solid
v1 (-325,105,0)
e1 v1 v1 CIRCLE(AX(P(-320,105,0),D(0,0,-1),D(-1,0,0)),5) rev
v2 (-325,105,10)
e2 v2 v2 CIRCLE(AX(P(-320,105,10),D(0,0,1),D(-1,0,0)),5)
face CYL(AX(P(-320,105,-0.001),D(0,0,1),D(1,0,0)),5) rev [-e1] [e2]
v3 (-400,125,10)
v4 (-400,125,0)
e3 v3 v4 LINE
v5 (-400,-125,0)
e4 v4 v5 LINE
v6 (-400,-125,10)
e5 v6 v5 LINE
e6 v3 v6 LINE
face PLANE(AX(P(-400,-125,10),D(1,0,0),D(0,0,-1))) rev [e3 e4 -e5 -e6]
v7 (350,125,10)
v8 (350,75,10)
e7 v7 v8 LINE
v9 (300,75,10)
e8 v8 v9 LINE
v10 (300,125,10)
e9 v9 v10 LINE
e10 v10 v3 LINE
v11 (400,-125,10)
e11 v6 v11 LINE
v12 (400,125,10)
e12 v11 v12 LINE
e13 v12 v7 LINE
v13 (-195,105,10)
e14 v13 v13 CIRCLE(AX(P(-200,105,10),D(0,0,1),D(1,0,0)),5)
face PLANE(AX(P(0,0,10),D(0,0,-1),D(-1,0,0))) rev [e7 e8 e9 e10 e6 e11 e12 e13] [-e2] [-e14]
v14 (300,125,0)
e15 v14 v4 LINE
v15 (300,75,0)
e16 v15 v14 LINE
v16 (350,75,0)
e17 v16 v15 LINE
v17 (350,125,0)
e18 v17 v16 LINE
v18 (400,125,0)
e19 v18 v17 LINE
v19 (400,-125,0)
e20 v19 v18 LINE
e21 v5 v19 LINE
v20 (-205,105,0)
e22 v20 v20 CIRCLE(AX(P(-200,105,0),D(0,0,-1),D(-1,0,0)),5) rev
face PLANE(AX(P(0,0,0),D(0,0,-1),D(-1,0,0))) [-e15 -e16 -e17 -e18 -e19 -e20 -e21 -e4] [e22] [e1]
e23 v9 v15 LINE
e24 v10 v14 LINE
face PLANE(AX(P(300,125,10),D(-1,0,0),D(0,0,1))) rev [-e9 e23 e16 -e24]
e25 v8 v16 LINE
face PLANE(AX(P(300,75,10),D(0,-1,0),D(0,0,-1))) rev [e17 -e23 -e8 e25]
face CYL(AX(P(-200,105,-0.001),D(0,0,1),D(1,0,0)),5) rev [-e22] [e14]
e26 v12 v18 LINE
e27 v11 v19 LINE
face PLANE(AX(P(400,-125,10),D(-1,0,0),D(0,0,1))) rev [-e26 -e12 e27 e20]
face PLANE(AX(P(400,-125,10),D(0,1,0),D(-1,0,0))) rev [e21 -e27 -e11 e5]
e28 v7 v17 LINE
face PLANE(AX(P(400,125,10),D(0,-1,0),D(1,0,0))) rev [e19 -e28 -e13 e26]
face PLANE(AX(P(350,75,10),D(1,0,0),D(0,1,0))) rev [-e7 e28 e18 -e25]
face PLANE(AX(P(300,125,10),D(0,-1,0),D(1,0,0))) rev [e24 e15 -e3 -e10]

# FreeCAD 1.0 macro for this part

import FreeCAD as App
import Part
import Sketcher
Q = App.Units.Quantity


def add_polygon(sketch, points):
    """Adds a closed chain of lines whose ends are joined by coincident constraints."""
    first, n = sketch.GeometryCount, len(points)
    for a, b in zip(points, points[1:] + points[:1]):
        sketch.addGeometry(Part.LineSegment(App.Vector(*a, 0), App.Vector(*b, 0)), False)
    for i in range(n):
        sketch.addConstraint(Sketcher.Constraint("Coincident", first + i, 2, first + (i + 1) % n, 1))

doc = App.newDocument("Part")
body = doc.addObject("PartDesign::Body", "Body")

# Sketch on XY plane
sketch1 = body.newObject("Sketcher::SketchObject", "Sketch")
sketch1.AttachmentSupport = (doc.getObject("XY_Plane"), [""])
sketch1.MapMode = "FlatFace"
add_polygon(sketch1, [(300, 75), (300, 125), (-400, 125), (-400, -125), (400, -125), (400, 125), (350, 125), (350, 75)])  # lines 0-7
sketch1.addConstraint(Sketcher.Constraint("Vertical", 0))
sketch1.addConstraint(Sketcher.Constraint("Horizontal", 1))
sketch1.addConstraint(Sketcher.Constraint("Vertical", 2))
sketch1.addConstraint(Sketcher.Constraint("Horizontal", 3))
sketch1.addConstraint(Sketcher.Constraint("Vertical", 4))
sketch1.addConstraint(Sketcher.Constraint("Horizontal", 5))
sketch1.addConstraint(Sketcher.Constraint("Vertical", 6))
sketch1.addConstraint(Sketcher.Constraint("Horizontal", 7))
sketch1.addConstraint(Sketcher.Constraint("Symmetric", 1, 2, 3, 2, -1, 1))
sketch1.addConstraint(Sketcher.Constraint("Horizontal", 1, 2, 4, 2))
sketch1.addConstraint(Sketcher.Constraint("Equal", 5, 7))
sketch1.addConstraint(Sketcher.Constraint("Equal", 7, 0))
sketch1.addConstraint(Sketcher.Constraint("DistanceX", 1, 2, 1, 1, Q("700 mm")))
sketch1.addConstraint(Sketcher.Constraint("DistanceX", 3, 1, 3, 2, Q("800 mm")))
sketch1.addConstraint(Sketcher.Constraint("DistanceY", 2, 2, 2, 1, Q("250 mm")))
pad1 = body.newObject("PartDesign::Pad", "Pad")
pad1.Profile = sketch1
pad1.Length = 10

# Sketch on XY plane
sketch2 = body.newObject("Sketcher::SketchObject", "Sketch001")
sketch2.AttachmentSupport = (doc.getObject("XY_Plane"), [""])
sketch2.MapMode = "FlatFace"
sketch2.AttachmentOffset = App.Placement(App.Vector(0, 0, 10), App.Rotation())
sketch2.addGeometry(Part.Circle(App.Vector(-200, 105, 0), App.Vector(0, 0, 1), 5), False)
sketch2.addConstraint(Sketcher.Constraint("Diameter", 0, Q("10 mm")))
sketch2.addConstraint(Sketcher.Constraint("DistanceX", 0, 3, -1, 1, Q("200 mm")))
sketch2.addConstraint(Sketcher.Constraint("DistanceY", -1, 1, 0, 3, Q("105 mm")))
pocket1 = body.newObject("PartDesign::Pocket", "Pocket")
pocket1.Profile = sketch2
pocket1.Type = "UpToFirst"

# Sketch on XY plane
sketch3 = body.newObject("Sketcher::SketchObject", "Sketch002")
sketch3.AttachmentSupport = (doc.getObject("XY_Plane"), [""])
sketch3.MapMode = "FlatFace"
sketch3.AttachmentOffset = App.Placement(App.Vector(0, 0, 10), App.Rotation())
sketch3.addGeometry(Part.Circle(App.Vector(-320, 105, 0), App.Vector(0, 0, 1), 5), False)
sketch3.addConstraint(Sketcher.Constraint("Diameter", 0, Q("10 mm")))
sketch3.addConstraint(Sketcher.Constraint("DistanceX", 0, 3, -1, 1, Q("320 mm")))
sketch3.addConstraint(Sketcher.Constraint("DistanceY", -1, 1, 0, 3, Q("105 mm")))
pocket2 = body.newObject("PartDesign::Pocket", "Pocket001")
pocket2.Profile = sketch3
pocket2.Type = "UpToFirst"

doc.recompute()
